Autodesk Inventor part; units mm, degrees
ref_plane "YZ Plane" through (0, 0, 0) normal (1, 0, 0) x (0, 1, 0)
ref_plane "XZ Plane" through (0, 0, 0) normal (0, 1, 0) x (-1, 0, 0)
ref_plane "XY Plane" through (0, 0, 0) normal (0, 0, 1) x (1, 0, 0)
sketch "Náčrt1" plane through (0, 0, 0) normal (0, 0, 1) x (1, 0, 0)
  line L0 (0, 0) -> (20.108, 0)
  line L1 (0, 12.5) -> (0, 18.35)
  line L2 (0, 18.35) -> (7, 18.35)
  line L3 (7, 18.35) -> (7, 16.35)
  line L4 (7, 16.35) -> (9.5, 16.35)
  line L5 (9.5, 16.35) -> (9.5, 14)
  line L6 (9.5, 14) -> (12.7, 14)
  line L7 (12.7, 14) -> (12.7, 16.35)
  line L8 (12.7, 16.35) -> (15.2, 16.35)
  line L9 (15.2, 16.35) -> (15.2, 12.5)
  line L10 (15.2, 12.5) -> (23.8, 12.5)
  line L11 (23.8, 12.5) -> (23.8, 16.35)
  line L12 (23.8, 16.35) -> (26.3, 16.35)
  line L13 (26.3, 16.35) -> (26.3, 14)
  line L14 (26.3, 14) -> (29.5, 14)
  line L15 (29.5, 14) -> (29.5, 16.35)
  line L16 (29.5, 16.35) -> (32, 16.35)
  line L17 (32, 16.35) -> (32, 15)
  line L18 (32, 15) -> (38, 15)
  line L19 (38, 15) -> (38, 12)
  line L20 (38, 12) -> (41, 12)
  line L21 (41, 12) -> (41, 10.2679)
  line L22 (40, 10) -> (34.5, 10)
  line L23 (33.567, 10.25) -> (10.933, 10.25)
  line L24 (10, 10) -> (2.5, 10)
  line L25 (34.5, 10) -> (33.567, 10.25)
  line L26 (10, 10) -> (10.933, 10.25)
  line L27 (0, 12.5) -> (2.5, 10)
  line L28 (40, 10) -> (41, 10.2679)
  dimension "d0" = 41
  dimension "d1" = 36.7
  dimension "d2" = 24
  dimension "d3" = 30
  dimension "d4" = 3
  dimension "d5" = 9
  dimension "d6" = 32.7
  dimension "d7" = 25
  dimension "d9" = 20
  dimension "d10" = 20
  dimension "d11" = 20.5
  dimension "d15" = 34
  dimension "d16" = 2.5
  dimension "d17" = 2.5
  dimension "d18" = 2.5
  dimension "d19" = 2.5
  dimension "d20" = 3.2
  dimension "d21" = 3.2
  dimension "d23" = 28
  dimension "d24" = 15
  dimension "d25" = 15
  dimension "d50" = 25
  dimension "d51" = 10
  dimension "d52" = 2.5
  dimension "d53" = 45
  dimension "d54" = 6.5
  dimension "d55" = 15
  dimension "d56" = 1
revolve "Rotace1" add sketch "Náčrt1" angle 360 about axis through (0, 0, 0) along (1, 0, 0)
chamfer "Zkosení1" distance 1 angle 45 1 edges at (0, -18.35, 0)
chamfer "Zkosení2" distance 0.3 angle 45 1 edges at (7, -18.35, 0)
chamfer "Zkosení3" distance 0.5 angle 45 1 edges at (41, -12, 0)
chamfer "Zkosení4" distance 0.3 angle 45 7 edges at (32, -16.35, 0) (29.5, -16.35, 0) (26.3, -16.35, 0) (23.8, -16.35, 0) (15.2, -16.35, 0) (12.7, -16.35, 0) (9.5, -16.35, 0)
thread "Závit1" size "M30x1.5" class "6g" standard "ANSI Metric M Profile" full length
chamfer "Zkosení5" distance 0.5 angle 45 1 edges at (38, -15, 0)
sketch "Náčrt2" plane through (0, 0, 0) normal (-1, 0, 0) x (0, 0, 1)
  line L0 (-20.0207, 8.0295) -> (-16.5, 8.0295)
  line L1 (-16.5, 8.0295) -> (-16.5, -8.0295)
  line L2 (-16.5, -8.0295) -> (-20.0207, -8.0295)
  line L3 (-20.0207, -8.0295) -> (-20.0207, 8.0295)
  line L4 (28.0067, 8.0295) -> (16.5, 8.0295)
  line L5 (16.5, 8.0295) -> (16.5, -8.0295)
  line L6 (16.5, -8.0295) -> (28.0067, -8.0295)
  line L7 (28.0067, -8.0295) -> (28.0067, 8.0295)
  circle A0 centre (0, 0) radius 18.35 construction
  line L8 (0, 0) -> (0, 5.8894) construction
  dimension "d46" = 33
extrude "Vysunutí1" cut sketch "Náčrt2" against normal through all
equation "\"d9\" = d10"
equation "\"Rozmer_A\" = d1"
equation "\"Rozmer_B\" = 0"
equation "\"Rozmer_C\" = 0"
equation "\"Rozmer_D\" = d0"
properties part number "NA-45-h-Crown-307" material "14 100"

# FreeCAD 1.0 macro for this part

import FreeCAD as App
import Part
import Sketcher
Q = App.Units.Quantity


def edges_at(feature, points):
    """Names of the edges that pass closest to the given points."""
    edges = feature.Shape.Edges
    near = lambda p: min(range(len(edges)), key=lambda i: edges[i].distToShape(Part.Vertex(*p))[0])
    return sorted({f"Edge{near(p) + 1}" for p in points})

doc = App.newDocument("Part")
params = doc.addObject("Spreadsheet::Sheet", "Params")
for row, (alias, value) in enumerate([
    ("sketch1_width", "3 mm"),
    ("sketch1_width2", "2.5 mm"),
    ("sketch1_width3", "3.2 mm"),
    ("sketch1_height", "2 mm"),
    ("sketch1_height2", "5.85 mm"),
    ("revolution_angle", "360 deg"),
    ("chamfer_size", "1 mm"),
    ("chamfer2_size", "0.3 mm"),
    ("chamfer3_size", "0.5 mm"),
    ("chamfer4_size", "0.3 mm"),
    ("chamfer5_size", "0.5 mm"),
], start=1):
    params.set(f"A{row}", alias)
    params.set(f"B{row}", "=" + value)
    params.setAlias(f"B{row}", alias)

body = doc.addObject("PartDesign::Body", "Body")

# Sketch on XY plane
sketch1 = body.newObject("Sketcher::SketchObject", "Sketch")
sketch1.AttachmentSupport = (doc.getObject("XY_Plane"), [""])
sketch1.MapMode = "FlatFace"
sketch1.addGeometry([
    Part.LineSegment(App.Vector(0, 18.4, 0), App.Vector(0, 12.5, 0)),  # 0
    Part.LineSegment(App.Vector(0, 12.5, 0), App.Vector(2.5, 10, 0)),  # 1
    Part.LineSegment(App.Vector(2.5, 10, 0), App.Vector(10, 10, 0)),  # 2
    Part.LineSegment(App.Vector(10, 10, 0), App.Vector(10.9, 10.2, 0)),  # 3
    Part.LineSegment(App.Vector(10.9, 10.2, 0), App.Vector(33.6, 10.2, 0)),  # 4
    Part.LineSegment(App.Vector(33.6, 10.2, 0), App.Vector(34.5, 10, 0)),  # 5
    Part.LineSegment(App.Vector(34.5, 10, 0), App.Vector(40, 10, 0)),  # 6
    Part.LineSegment(App.Vector(40, 10, 0), App.Vector(41, 10.3, 0)),  # 7
    Part.LineSegment(App.Vector(41, 10.3, 0), App.Vector(41, 12, 0)),  # 8
    Part.LineSegment(App.Vector(41, 12, 0), App.Vector(38, 12, 0)),  # 9
    Part.LineSegment(App.Vector(38, 12, 0), App.Vector(38, 15, 0)),  # 10
    Part.LineSegment(App.Vector(38, 15, 0), App.Vector(32, 15, 0)),  # 11
    Part.LineSegment(App.Vector(32, 15, 0), App.Vector(32, 16.4, 0)),  # 12
    Part.LineSegment(App.Vector(32, 16.4, 0), App.Vector(29.5, 16.4, 0)),  # 13
    Part.LineSegment(App.Vector(29.5, 16.4, 0), App.Vector(29.5, 14, 0)),  # 14
    Part.LineSegment(App.Vector(29.5, 14, 0), App.Vector(26.3, 14, 0)),  # 15
    Part.LineSegment(App.Vector(26.3, 14, 0), App.Vector(26.3, 16.4, 0)),  # 16
    Part.LineSegment(App.Vector(26.3, 16.4, 0), App.Vector(23.8, 16.4, 0)),  # 17
    Part.LineSegment(App.Vector(23.8, 16.4, 0), App.Vector(23.8, 12.5, 0)),  # 18
    Part.LineSegment(App.Vector(23.8, 12.5, 0), App.Vector(15.2, 12.5, 0)),  # 19
    Part.LineSegment(App.Vector(15.2, 12.5, 0), App.Vector(15.2, 16.4, 0)),  # 20
    Part.LineSegment(App.Vector(15.2, 16.4, 0), App.Vector(12.7, 16.4, 0)),  # 21
    Part.LineSegment(App.Vector(12.7, 16.4, 0), App.Vector(12.7, 14, 0)),  # 22
    Part.LineSegment(App.Vector(12.7, 14, 0), App.Vector(9.5, 14, 0)),  # 23
    Part.LineSegment(App.Vector(9.5, 14, 0), App.Vector(9.5, 16.4, 0)),  # 24
    Part.LineSegment(App.Vector(9.5, 16.4, 0), App.Vector(7, 16.4, 0)),  # 25
    Part.LineSegment(App.Vector(7, 16.4, 0), App.Vector(7, 18.4, 0)),  # 26
    Part.LineSegment(App.Vector(7, 18.4, 0), App.Vector(0, 18.4, 0)),  # 27
], False)
sketch1.addConstraint([
    Sketcher.Constraint("Coincident", 0, 2, 1, 1),
    Sketcher.Constraint("Coincident", 1, 2, 2, 1),
    Sketcher.Constraint("Coincident", 2, 2, 3, 1),
    Sketcher.Constraint("Coincident", 3, 2, 4, 1),
    Sketcher.Constraint("Coincident", 4, 2, 5, 1),
    Sketcher.Constraint("Coincident", 5, 2, 6, 1),
    Sketcher.Constraint("Coincident", 6, 2, 7, 1),
    Sketcher.Constraint("Coincident", 7, 2, 8, 1),
    Sketcher.Constraint("Coincident", 8, 2, 9, 1),
    Sketcher.Constraint("Coincident", 9, 2, 10, 1),
    Sketcher.Constraint("Coincident", 10, 2, 11, 1),
    Sketcher.Constraint("Coincident", 11, 2, 12, 1),
    Sketcher.Constraint("Coincident", 12, 2, 13, 1),
    Sketcher.Constraint("Coincident", 13, 2, 14, 1),
    Sketcher.Constraint("Coincident", 14, 2, 15, 1),
    Sketcher.Constraint("Coincident", 15, 2, 16, 1),
    Sketcher.Constraint("Coincident", 16, 2, 17, 1),
    Sketcher.Constraint("Coincident", 17, 2, 18, 1),
    Sketcher.Constraint("Coincident", 18, 2, 19, 1),
    Sketcher.Constraint("Coincident", 19, 2, 20, 1),
    Sketcher.Constraint("Coincident", 20, 2, 21, 1),
    Sketcher.Constraint("Coincident", 21, 2, 22, 1),
    Sketcher.Constraint("Coincident", 22, 2, 23, 1),
    Sketcher.Constraint("Coincident", 23, 2, 24, 1),
    Sketcher.Constraint("Coincident", 24, 2, 25, 1),
    Sketcher.Constraint("Coincident", 25, 2, 26, 1),
    Sketcher.Constraint("Coincident", 26, 2, 27, 1),
    Sketcher.Constraint("Coincident", 27, 2, 0, 1),
    Sketcher.Constraint("Vertical", 0),
    Sketcher.Constraint("Horizontal", 2),
    Sketcher.Constraint("Horizontal", 4),
    Sketcher.Constraint("Horizontal", 6),
    Sketcher.Constraint("Vertical", 8),
    Sketcher.Constraint("Horizontal", 9),
    Sketcher.Constraint("Vertical", 10),
    Sketcher.Constraint("Horizontal", 11),
    Sketcher.Constraint("Vertical", 12),
    Sketcher.Constraint("Horizontal", 13),
    Sketcher.Constraint("Vertical", 14),
    Sketcher.Constraint("Horizontal", 15),
    Sketcher.Constraint("Vertical", 16),
    Sketcher.Constraint("Horizontal", 17),
    Sketcher.Constraint("Vertical", 18),
    Sketcher.Constraint("Horizontal", 19),
    Sketcher.Constraint("Vertical", 20),
    Sketcher.Constraint("Horizontal", 21),
    Sketcher.Constraint("Vertical", 22),
    Sketcher.Constraint("Horizontal", 23),
    Sketcher.Constraint("Vertical", 24),
    Sketcher.Constraint("Horizontal", 25),
    Sketcher.Constraint("Vertical", 26),
    Sketcher.Constraint("Horizontal", 27),
    Sketcher.Constraint("PointOnObject", 0, 2, -2),
    Sketcher.Constraint("Parallel", 3, 7),
    Sketcher.Constraint("Horizontal", 2, 2, 5, 2),
    Sketcher.Constraint("Horizontal", 13, 2, 16, 2),
    Sketcher.Constraint("Horizontal", 0, 2, 18, 2),
    Sketcher.Constraint("Horizontal", 17, 2, 20, 2),
    Sketcher.Constraint("Horizontal", 15, 2, 22, 2),
    Sketcher.Constraint("Horizontal", 21, 2, 24, 2),
    Sketcher.Constraint("Equal", 13, 17),
    Sketcher.Constraint("Equal", 17, 21),
    Sketcher.Constraint("Equal", 15, 23),
    Sketcher.Constraint("Equal", 21, 25),
    Sketcher.Constraint("Equal", 9, 10),
    Sketcher.Constraint("Equal", 3, 5),
    Sketcher.Constraint("DistanceX", 9, 2, 9, 1, Q("3 mm")),
    Sketcher.Constraint("Angle", 1, Q("-45 deg")),
    Sketcher.Constraint("Angle", 3, Q("15.0002 deg")),
    Sketcher.Constraint("DistanceX", 13, 2, 13, 1, Q("2.5 mm")),
    Sketcher.Constraint("DistanceX", 15, 2, 15, 1, Q("3.2 mm")),
    Sketcher.Constraint("DistanceY", -1, 1, 1, 2, Q("10 mm")),
    Sketcher.Constraint("DistanceX", -1, 1, 2, 2, Q("10 mm")),
    Sketcher.Constraint("DistanceX", -1, 1, 7, 2, Q("41 mm")),
    Sketcher.Constraint("DistanceY", -1, 1, 10, 2, Q("15 mm")),
    Sketcher.Constraint("DistanceX", 2, 2, 6, 2, Q("30 mm")),
    Sketcher.Constraint("DistanceY", 14, 2, 11, 2, Q("1 mm")),
    Sketcher.Constraint("DistanceX", 25, 2, 2, 2, Q("3 mm")),
    Sketcher.Constraint("DistanceX", -1, 1, 1, 2, Q("2.5 mm")),
    Sketcher.Constraint("DistanceX", 5, 2, 7, 2, Q("6.5 mm")),
    Sketcher.Constraint("DistanceX", 11, 2, 5, 2, Q("2.5 mm")),
    Sketcher.Constraint("DistanceY", 26, 1, 26, 2, Q("2 mm")),
    Sketcher.Constraint("DistanceY", 0, 2, 0, 1, Q("5.85 mm")),
    Sketcher.Constraint("DistanceY", 4, 2, 12, 2, Q("6.1 mm")),
])
sketch1.setExpression("Constraints[66]", "Params.sketch1_width")
sketch1.setExpression("Constraints[69]", "Params.sketch1_width2")
sketch1.setExpression("Constraints[70]", "Params.sketch1_width3")
sketch1.setExpression("Constraints[81]", "Params.sketch1_height")
sketch1.setExpression("Constraints[82]", "Params.sketch1_height2")
revolution = body.newObject("PartDesign::Revolution", "Revolution")
revolution.Profile = sketch1
revolution.ReferenceAxis = (sketch1, ["H_Axis"])
revolution.setExpression("Angle", "Params.revolution_angle")
doc.recompute()

chamfer = body.newObject("PartDesign::Chamfer", "Chamfer")
chamfer.Base = (revolution, edges_at(revolution, [(0, -18.35, 0)]))
chamfer.setExpression("Size", "Params.chamfer_size")
doc.recompute()

chamfer2 = body.newObject("PartDesign::Chamfer", "Chamfer001")
chamfer2.Base = (chamfer, edges_at(chamfer, [(7, -18.35, 0)]))
chamfer2.setExpression("Size", "Params.chamfer2_size")
doc.recompute()

chamfer3 = body.newObject("PartDesign::Chamfer", "Chamfer002")
chamfer3.Base = (chamfer2, edges_at(chamfer2, [(41, -12, 0)]))
chamfer3.setExpression("Size", "Params.chamfer3_size")
doc.recompute()

chamfer4 = body.newObject("PartDesign::Chamfer", "Chamfer003")
chamfer4.Base = (chamfer3, edges_at(chamfer3, [
    (32, -16.35, 0),
    (29.5, -16.35, 0),
    (26.3, -16.35, 0),
    (23.8, -16.35, 0),
    (15.2, -16.35, 0),
    (12.7, -16.35, 0),
    (9.5, -16.35, 0),
]))
chamfer4.setExpression("Size", "Params.chamfer4_size")
doc.recompute()

chamfer5 = body.newObject("PartDesign::Chamfer", "Chamfer004")
chamfer5.Base = (chamfer4, edges_at(chamfer4, [(38, -15, 0)]))
chamfer5.setExpression("Size", "Params.chamfer5_size")

# Sketch on YZ plane
sketch2 = body.newObject("Sketcher::SketchObject", "Sketch001")
sketch2.AttachmentSupport = (doc.getObject("YZ_Plane"), [""])
sketch2.MapMode = "FlatFace"
sketch2.addGeometry([
    Part.LineSegment(App.Vector(8, -16.5, 0), App.Vector(8, -20, 0)),  # 0
    Part.LineSegment(App.Vector(8, -20, 0), App.Vector(-8, -20, 0)),  # 1
    Part.LineSegment(App.Vector(-8, -20, 0), App.Vector(-8, -16.5, 0)),  # 2
    Part.LineSegment(App.Vector(-8, -16.5, 0), App.Vector(8, -16.5, 0)),  # 3
    Part.LineSegment(App.Vector(-8, 28, 0), App.Vector(8, 28, 0)),  # 4
    Part.LineSegment(App.Vector(8, 28, 0), App.Vector(8, 16.5, 0)),  # 5
    Part.LineSegment(App.Vector(8, 16.5, 0), App.Vector(-8, 16.5, 0)),  # 6
    Part.LineSegment(App.Vector(-8, 16.5, 0), App.Vector(-8, 28, 0)),  # 7
], False)
sketch2.addConstraint([
    Sketcher.Constraint("Coincident", 0, 2, 1, 1),
    Sketcher.Constraint("Coincident", 1, 2, 2, 1),
    Sketcher.Constraint("Coincident", 2, 2, 3, 1),
    Sketcher.Constraint("Coincident", 3, 2, 0, 1),
    Sketcher.Constraint("Coincident", 4, 2, 5, 1),
    Sketcher.Constraint("Coincident", 5, 2, 6, 1),
    Sketcher.Constraint("Coincident", 6, 2, 7, 1),
    Sketcher.Constraint("Coincident", 7, 2, 4, 1),
    Sketcher.Constraint("Vertical", 0),
    Sketcher.Constraint("Horizontal", 1),
    Sketcher.Constraint("Vertical", 2),
    Sketcher.Constraint("Horizontal", 3),
    Sketcher.Constraint("Horizontal", 4),
    Sketcher.Constraint("Vertical", 5),
    Sketcher.Constraint("Horizontal", 6),
    Sketcher.Constraint("Vertical", 7),
    Sketcher.Constraint("Symmetric", 2, 2, 5, 2, -1, 1),
    Sketcher.Constraint("Vertical", 3, 2, 4, 2),
    Sketcher.Constraint("Vertical", 2, 2, 6, 2),
    Sketcher.Constraint("DistanceY", 3, 2, 5, 2, Q("33 mm")),
    Sketcher.Constraint("DistanceX", 1, 2, 1, 1, Q("16.059 mm")),
    Sketcher.Constraint("DistanceY", 0, 2, 0, 1, Q("3.5207 mm")),
    Sketcher.Constraint("DistanceY", 5, 2, 5, 1, Q("11.5067 mm")),
])
pocket1 = body.newObject("PartDesign::Pocket", "Pocket")
pocket1.Profile = sketch2
pocket1.Type = "ThroughAll"
pocket1.Reversed = True

doc.recompute()
